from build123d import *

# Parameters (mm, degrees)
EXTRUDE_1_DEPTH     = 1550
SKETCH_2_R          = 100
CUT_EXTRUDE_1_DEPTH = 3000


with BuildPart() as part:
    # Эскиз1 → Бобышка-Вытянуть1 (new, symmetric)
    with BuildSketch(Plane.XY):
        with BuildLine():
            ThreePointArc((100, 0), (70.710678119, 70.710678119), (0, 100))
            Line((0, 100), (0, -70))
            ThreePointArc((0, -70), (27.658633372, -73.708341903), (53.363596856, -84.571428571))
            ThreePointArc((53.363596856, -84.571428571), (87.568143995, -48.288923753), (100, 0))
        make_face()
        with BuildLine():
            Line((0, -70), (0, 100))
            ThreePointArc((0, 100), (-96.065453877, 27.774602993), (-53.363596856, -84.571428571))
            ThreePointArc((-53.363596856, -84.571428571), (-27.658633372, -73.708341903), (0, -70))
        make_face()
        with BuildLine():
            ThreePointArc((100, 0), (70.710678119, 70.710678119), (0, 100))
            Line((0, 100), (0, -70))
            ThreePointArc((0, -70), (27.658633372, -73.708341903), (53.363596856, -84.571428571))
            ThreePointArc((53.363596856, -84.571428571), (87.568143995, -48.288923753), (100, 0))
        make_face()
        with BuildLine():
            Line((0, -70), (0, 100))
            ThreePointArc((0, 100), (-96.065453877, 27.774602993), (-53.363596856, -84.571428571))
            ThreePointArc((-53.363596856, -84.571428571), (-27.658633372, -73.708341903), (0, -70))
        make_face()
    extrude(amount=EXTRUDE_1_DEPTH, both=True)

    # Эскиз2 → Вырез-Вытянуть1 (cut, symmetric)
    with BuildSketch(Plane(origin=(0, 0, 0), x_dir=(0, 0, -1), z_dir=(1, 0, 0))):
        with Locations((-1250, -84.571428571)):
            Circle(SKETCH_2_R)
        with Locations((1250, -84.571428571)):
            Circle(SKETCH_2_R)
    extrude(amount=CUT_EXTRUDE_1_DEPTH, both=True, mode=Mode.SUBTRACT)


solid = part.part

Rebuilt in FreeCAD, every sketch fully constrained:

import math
import FreeCAD as App
import Part
import Sketcher

doc = App.newDocument("Part")
body = doc.addObject("PartDesign::Body", "Body")

# Sketch on XY plane
sketch1 = doc.addObject("Sketcher::SketchObject", "Sketch")
body.addObject(sketch1)
sketch1.AttachmentSupport = (doc.XY_Plane, [""])
sketch1.MapMode = "FlatFace"
sketch1.addGeometry([
    Part.ArcOfCircle(Part.Circle(App.Vector(0, -175, 0), App.Vector(0, 0, 1), 105), math.radians(59.454348), math.radians(90)),  # 0
    Part.ArcOfCircle(Part.Circle(App.Vector(0, 0, 0), App.Vector(0, 0, 1), 100), math.radians(-57.748547), math.radians(0)),  # 1
    Part.ArcOfCircle(Part.Circle(App.Vector(0, 0, 0), App.Vector(0, 0, 1), 100), math.radians(0), math.radians(90)),  # 2
    Part.ArcOfCircle(Part.Circle(App.Vector(0, 0, 0), App.Vector(0, 0, 1), 100), math.radians(90), math.radians(237.748547)),  # 3
    Part.ArcOfCircle(Part.Circle(App.Vector(0, -175, 0), App.Vector(0, 0, 1), 105), math.radians(90), math.radians(120.545652)),  # 4
], False)
sketch1.addConstraint([
    Sketcher.Constraint("Coincident", 0, 1, 1, 1),
    Sketcher.Constraint("Tangent", 1, 2, 2, 1),
    Sketcher.Constraint("Tangent", 2, 2, 3, 1),
    Sketcher.Constraint("Coincident", 3, 2, 4, 2),
    Sketcher.Constraint("Tangent", 4, 1, 0, 2),
    Sketcher.Constraint("Coincident", 1, 3, -1, 1),
    Sketcher.Constraint("Coincident", 3, 3, -1, 1),
    Sketcher.Constraint("Equal", 0, 4),
    Sketcher.Constraint("PointOnObject", 0, 3, -2),
    Sketcher.Constraint("PointOnObject", 1, 2, -1),
    Sketcher.Constraint("PointOnObject", 2, 2, -2),
    Sketcher.Constraint("PointOnObject", 4, 1, -2),
    Sketcher.Constraint("Radius", 0, 105.0),
    Sketcher.Constraint("Radius", 1, 100.0),
    Sketcher.Constraint("DistanceY", 0, 3, -1, 1, 175.0),
])
pad1 = doc.addObject("PartDesign::Pad", "Pad")
body.addObject(pad1)
pad1.Profile = sketch1
pad1.Length = 3100
pad1.Midplane = True

# Sketch on YZ plane
sketch2 = doc.addObject("Sketcher::SketchObject", "Sketch001")
body.addObject(sketch2)
sketch2.AttachmentSupport = (doc.YZ_Plane, [""])
sketch2.MapMode = "FlatFace"
sketch2.addGeometry([
    Part.Circle(App.Vector(-84.571429, 1250, 0), App.Vector(0, 0, 1), 100),
    Part.Circle(App.Vector(-84.571429, -1250, 0), App.Vector(0, 0, 1), 100),
], False)
sketch2.addConstraint([
    Sketcher.Constraint("Equal", 0, 1),
    Sketcher.Constraint("Symmetric", 0, 3, 1, 3, -1),
    Sketcher.Constraint("Diameter", 0, 200.0),
    Sketcher.Constraint("DistanceY", -1, 1, 0, 3, 1250.0),
    Sketcher.Constraint("DistanceX", 0, 3, -1, 1, 84.571429),
])
pocket1 = doc.addObject("PartDesign::Pocket", "Pocket")
body.addObject(pocket1)
pocket1.Profile = sketch2
pocket1.Length = 6000
pocket1.Midplane = True

doc.recompute()
